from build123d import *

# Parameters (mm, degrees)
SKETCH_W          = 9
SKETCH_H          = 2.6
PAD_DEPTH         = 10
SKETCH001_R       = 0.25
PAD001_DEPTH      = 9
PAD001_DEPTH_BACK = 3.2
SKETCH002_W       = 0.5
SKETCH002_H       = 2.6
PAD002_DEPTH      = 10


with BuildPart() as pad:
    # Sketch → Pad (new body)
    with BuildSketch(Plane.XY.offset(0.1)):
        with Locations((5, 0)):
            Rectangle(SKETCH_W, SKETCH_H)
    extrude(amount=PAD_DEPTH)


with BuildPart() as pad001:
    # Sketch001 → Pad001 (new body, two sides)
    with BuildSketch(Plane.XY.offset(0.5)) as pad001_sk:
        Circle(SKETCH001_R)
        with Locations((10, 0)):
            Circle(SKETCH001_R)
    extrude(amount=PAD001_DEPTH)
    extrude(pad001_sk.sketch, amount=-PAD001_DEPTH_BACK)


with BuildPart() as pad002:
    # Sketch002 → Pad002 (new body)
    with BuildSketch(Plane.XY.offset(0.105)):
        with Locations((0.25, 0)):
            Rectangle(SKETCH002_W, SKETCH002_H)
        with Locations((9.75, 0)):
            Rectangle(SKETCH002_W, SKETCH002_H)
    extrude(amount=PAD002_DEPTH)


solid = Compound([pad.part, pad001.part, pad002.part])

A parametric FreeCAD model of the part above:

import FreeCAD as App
import Part
import Sketcher
Q = App.Units.Quantity

doc = App.newDocument("Part")
body = doc.addObject("PartDesign::Body", "Body")

sketch1 = body.newObject("Sketcher::SketchObject", "Sketch")
sketch1.AttachmentSupport = (doc.getObject("XY_Plane"), [""])
sketch1.MapMode = "FlatFace"
sketch1.AttachmentOffset = App.Placement(App.Vector(0, 0, 0.1), App.Rotation())
sketch1.addGeometry(Part.LineSegment(App.Vector(0.5, 1.3, 0), App.Vector(0.5, -1.3, 0)), False)
sketch1.addGeometry(Part.LineSegment(App.Vector(0.5, -1.3, 0), App.Vector(9.5, -1.3, 0)), False)
sketch1.addGeometry(Part.LineSegment(App.Vector(9.5, -1.3, 0), App.Vector(9.5, 1.3, 0)), False)
sketch1.addGeometry(Part.LineSegment(App.Vector(9.5, 1.3, 0), App.Vector(0.5, 1.3, 0)), False)
sketch1.addConstraint(Sketcher.Constraint("Coincident", 0, 2, 1, 1))
sketch1.addConstraint(Sketcher.Constraint("Coincident", 1, 2, 2, 1))
sketch1.addConstraint(Sketcher.Constraint("Coincident", 2, 2, 3, 1))
sketch1.addConstraint(Sketcher.Constraint("Coincident", 3, 2, 0, 1))
sketch1.addConstraint(Sketcher.Constraint("Vertical", 0))
sketch1.addConstraint(Sketcher.Constraint("Horizontal", 1))
sketch1.addConstraint(Sketcher.Constraint("Vertical", 2))
sketch1.addConstraint(Sketcher.Constraint("Horizontal", 3))
sketch1.addConstraint(Sketcher.Constraint("DistanceX", 1, 1, 1, 2, Q("9 mm")))
sketch1.addConstraint(Sketcher.Constraint("DistanceY", 0, 2, 0, 1, Q("2.6 mm")))
sketch1.addConstraint(Sketcher.Constraint("DistanceX", -1, 1, 0, 2, Q("0.5 mm")))
sketch1.addConstraint(Sketcher.Constraint("DistanceY", 0, 2, -1, 1, Q("1.3 mm")))
pad1 = body.newObject("PartDesign::Pad", "Pad")
pad1.Profile = sketch1
pad1.Length = 10
body2 = doc.addObject("PartDesign::Body", "Body001")
body2.AllowCompound = True

sketch2 = body2.newObject("Sketcher::SketchObject", "Sketch001")
sketch2.AttachmentSupport = (doc.getObject("XY_Plane001"), [""])
sketch2.MapMode = "FlatFace"
sketch2.AttachmentOffset = App.Placement(App.Vector(0, 0, 0.5), App.Rotation())
sketch2.addGeometry(Part.Circle(App.Vector(0, 0, 0), App.Vector(0, 0, 1), 0.25), False)
sketch2.addGeometry(Part.Circle(App.Vector(10, 0, 0), App.Vector(0, 0, 1), 0.25), False)
sketch2.addConstraint(Sketcher.Constraint("Coincident", 0, 3, -1, 1))
sketch2.addConstraint(Sketcher.Constraint("Equal", 0, 1))
sketch2.addConstraint(Sketcher.Constraint("PointOnObject", 1, 3, -1))
sketch2.addConstraint(Sketcher.Constraint("Diameter", 0, Q("0.5 mm")))
sketch2.addConstraint(Sketcher.Constraint("DistanceX", -1, 1, 1, 3, Q("10 mm")))
pad2 = body2.newObject("PartDesign::Pad", "Pad001")
pad2.Profile = sketch2
pad2.Type = "TwoLengths"
pad2.Length = 9
pad2.Length2 = 3.2
body3 = doc.addObject("PartDesign::Body", "Body002")
body3.AllowCompound = True

sketch3 = body3.newObject("Sketcher::SketchObject", "Sketch002")
sketch3.AttachmentSupport = (doc.getObject("XY_Plane002"), [""])
sketch3.MapMode = "FlatFace"
sketch3.AttachmentOffset = App.Placement(App.Vector(0, 0, 0.105), App.Rotation())
sketch3.addGeometry(Part.LineSegment(App.Vector(0, 1.3, 0), App.Vector(0, -1.3, 0)), False)
sketch3.addGeometry(Part.LineSegment(App.Vector(0, -1.3, 0), App.Vector(0.5, -1.3, 0)), False)
sketch3.addGeometry(Part.LineSegment(App.Vector(0.5, -1.3, 0), App.Vector(0.5, 1.3, 0)), False)
sketch3.addGeometry(Part.LineSegment(App.Vector(0.5, 1.3, 0), App.Vector(0, 1.3, 0)), False)
sketch3.addGeometry(Part.LineSegment(App.Vector(9.5, 1.3, 0), App.Vector(9.5, -1.3, 0)), False)
sketch3.addGeometry(Part.LineSegment(App.Vector(9.5, -1.3, 0), App.Vector(10, -1.3, 0)), False)
sketch3.addGeometry(Part.LineSegment(App.Vector(10, -1.3, 0), App.Vector(10, 1.3, 0)), False)
sketch3.addGeometry(Part.LineSegment(App.Vector(10, 1.3, 0), App.Vector(9.5, 1.3, 0)), False)
sketch3.addConstraint(Sketcher.Constraint("Coincident", 0, 2, 1, 1))
sketch3.addConstraint(Sketcher.Constraint("Coincident", 1, 2, 2, 1))
sketch3.addConstraint(Sketcher.Constraint("Coincident", 2, 2, 3, 1))
sketch3.addConstraint(Sketcher.Constraint("Coincident", 3, 2, 0, 1))
sketch3.addConstraint(Sketcher.Constraint("Coincident", 4, 2, 5, 1))
sketch3.addConstraint(Sketcher.Constraint("Coincident", 5, 2, 6, 1))
sketch3.addConstraint(Sketcher.Constraint("Coincident", 6, 2, 7, 1))
sketch3.addConstraint(Sketcher.Constraint("Coincident", 7, 2, 4, 1))
sketch3.addConstraint(Sketcher.Constraint("Vertical", 0))
sketch3.addConstraint(Sketcher.Constraint("Horizontal", 1))
sketch3.addConstraint(Sketcher.Constraint("Vertical", 2))
sketch3.addConstraint(Sketcher.Constraint("Horizontal", 3))
sketch3.addConstraint(Sketcher.Constraint("Vertical", 4))
sketch3.addConstraint(Sketcher.Constraint("Horizontal", 5))
sketch3.addConstraint(Sketcher.Constraint("Vertical", 6))
sketch3.addConstraint(Sketcher.Constraint("Horizontal", 7))
sketch3.addConstraint(Sketcher.Constraint("Symmetric", 0, 2, 3, 2, -1, 1))
sketch3.addConstraint(Sketcher.Constraint("Horizontal", 1, 2, 4, 2))
sketch3.addConstraint(Sketcher.Constraint("Horizontal", 3, 2, 6, 2))
sketch3.addConstraint(Sketcher.Constraint("Equal", 3, 5))
sketch3.addConstraint(Sketcher.Constraint("DistanceX", 1, 1, 1, 2, Q("0.5 mm")))
sketch3.addConstraint(Sketcher.Constraint("DistanceY", 0, 2, 0, 1, Q("2.6 mm")))
sketch3.addConstraint(Sketcher.Constraint("DistanceX", -1, 1, 5, 2, Q("10 mm")))
pad3 = body3.newObject("PartDesign::Pad", "Pad002")
pad3.Profile = sketch3
pad3.Length = 10

doc.recompute()
